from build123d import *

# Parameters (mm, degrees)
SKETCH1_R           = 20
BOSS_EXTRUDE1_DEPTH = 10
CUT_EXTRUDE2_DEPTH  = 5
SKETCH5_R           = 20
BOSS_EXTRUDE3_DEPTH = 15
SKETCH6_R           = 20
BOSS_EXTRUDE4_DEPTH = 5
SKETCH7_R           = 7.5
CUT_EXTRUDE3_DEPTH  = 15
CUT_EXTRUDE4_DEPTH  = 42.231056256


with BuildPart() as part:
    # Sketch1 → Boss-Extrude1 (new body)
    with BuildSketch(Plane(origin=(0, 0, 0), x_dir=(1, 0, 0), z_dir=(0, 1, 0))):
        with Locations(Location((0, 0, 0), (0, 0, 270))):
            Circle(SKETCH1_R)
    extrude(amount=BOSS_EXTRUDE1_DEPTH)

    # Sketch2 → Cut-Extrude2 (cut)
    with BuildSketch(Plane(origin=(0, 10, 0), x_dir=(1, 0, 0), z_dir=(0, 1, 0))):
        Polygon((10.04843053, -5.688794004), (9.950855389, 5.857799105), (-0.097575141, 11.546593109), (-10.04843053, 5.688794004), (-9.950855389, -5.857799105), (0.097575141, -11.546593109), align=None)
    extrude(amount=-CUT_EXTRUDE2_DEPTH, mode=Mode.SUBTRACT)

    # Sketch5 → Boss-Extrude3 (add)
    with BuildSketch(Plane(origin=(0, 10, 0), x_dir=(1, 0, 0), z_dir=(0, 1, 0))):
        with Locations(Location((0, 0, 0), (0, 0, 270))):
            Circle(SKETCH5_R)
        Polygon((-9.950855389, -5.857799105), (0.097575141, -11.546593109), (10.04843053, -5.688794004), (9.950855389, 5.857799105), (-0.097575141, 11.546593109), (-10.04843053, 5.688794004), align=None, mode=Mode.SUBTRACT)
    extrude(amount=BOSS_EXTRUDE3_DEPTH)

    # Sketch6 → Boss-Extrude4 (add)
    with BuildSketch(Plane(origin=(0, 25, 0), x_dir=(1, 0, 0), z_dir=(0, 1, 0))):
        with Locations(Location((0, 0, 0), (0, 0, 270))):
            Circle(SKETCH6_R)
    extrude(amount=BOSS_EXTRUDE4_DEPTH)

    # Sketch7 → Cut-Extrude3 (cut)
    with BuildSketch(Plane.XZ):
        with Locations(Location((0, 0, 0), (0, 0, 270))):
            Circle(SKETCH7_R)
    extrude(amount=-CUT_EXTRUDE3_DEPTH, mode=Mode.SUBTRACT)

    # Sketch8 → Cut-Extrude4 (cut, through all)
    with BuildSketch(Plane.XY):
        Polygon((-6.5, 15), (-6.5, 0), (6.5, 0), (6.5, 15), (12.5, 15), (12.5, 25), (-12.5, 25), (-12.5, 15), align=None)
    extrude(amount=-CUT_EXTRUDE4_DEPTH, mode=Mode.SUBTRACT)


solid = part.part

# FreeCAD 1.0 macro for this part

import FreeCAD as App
import Part
import Sketcher

V = App.Vector


def add_polygon(sketch, points):
    """Adds a closed chain of lines whose ends are joined by coincident constraints."""
    first, n = sketch.GeometryCount, len(points)
    for a, b in zip(points, points[1:] + points[:1]):
        sketch.addGeometry(Part.LineSegment(App.Vector(*a, 0), App.Vector(*b, 0)), False)
    for i in range(n):
        sketch.addConstraint(Sketcher.Constraint("Coincident", first + i, 2, first + (i + 1) % n, 1))

doc = App.newDocument("Part")
body = doc.addObject("PartDesign::Body", "Body")

# Sketch on XZ plane
sketch1 = body.newObject("Sketcher::SketchObject", "Sketch")
sketch1.AttachmentSupport = (doc.getObject("XZ_Plane"), [""])
sketch1.MapMode = "FlatFace"
sketch1.addGeometry(Part.Circle(V(0, 0, 0), V(0, 0, 1), 20), False)
sketch1.addConstraint([
    Sketcher.Constraint("Coincident", 0, 3, -1, 1),
    Sketcher.Constraint("Diameter", 0, 40.0),
])
pad1 = body.newObject("PartDesign::Pad", "Pad")
pad1.Profile = sketch1
pad1.Length = 10
pad1.Reversed = True

# Sketch on XZ plane
sketch2 = body.newObject("Sketcher::SketchObject", "Sketch001")
sketch2.AttachmentSupport = (doc.getObject("XZ_Plane"), [""])
sketch2.MapMode = "FlatFace"
sketch2.AttachmentOffset = App.Placement(V(0, 0, -10), App.Rotation())
add_polygon(sketch2, [(10.048431, 5.688794), (9.950855, -5.857799), (-0.097575, -11.546593), (-10.048431, -5.688794), (-9.950855, 5.857799), (0.097575, 11.546593)])  # lines 0-5
sketch2.addConstraint([
    Sketcher.Constraint("Symmetric", 0, 2, 3, 2, -1, 1),
    Sketcher.Constraint("Symmetric", 1, 2, 4, 2, -1, 1),
    Sketcher.Constraint("Symmetric", 2, 2, 5, 2, -1, 1),
    Sketcher.Constraint("Equal", 0, 1),
    Sketcher.Constraint("Equal", 1, 2),
    Sketcher.Constraint("DistanceY", 0, 2, -1, 1, 5.857799),
    Sketcher.Constraint("DistanceY", 1, 2, 2, 2, 5.857799),
    Sketcher.Constraint("DistanceX", 2, 2, -1, 1, 10.048431),
    Sketcher.Constraint("DistanceX", 1, 2, 0, 2, 10.048431),
])
pocket1 = body.newObject("PartDesign::Pocket", "Pocket")
pocket1.Profile = sketch2
pocket1.Length = 5
pocket1.Reversed = True

# Sketch on XZ plane
sketch3 = body.newObject("Sketcher::SketchObject", "Sketch002")
sketch3.AttachmentSupport = (doc.getObject("XZ_Plane"), [""])
sketch3.MapMode = "FlatFace"
sketch3.AttachmentOffset = App.Placement(V(0, 0, -10), App.Rotation())
sketch3.addGeometry(Part.Circle(V(0, 0, 0), V(0, 0, 1), 20), False)  # 0
add_polygon(sketch3, [(0.097575, 11.546593), (-9.950855, 5.857799), (-10.048431, -5.688794), (-0.097575, -11.546593), (9.950855, -5.857799), (10.048431, 5.688794)])  # lines 1-6
sketch3.addConstraint([
    Sketcher.Constraint("Coincident", 0, 3, -1, 1),
    Sketcher.Constraint("Symmetric", 1, 2, 4, 2, -1, 1),
    Sketcher.Constraint("Symmetric", 2, 2, 5, 2, -1, 1),
    Sketcher.Constraint("Symmetric", 3, 2, 6, 2, -1, 1),
    Sketcher.Constraint("Equal", 1, 2),
    Sketcher.Constraint("Equal", 2, 3),
    Sketcher.Constraint("Diameter", 0, 40.0),
    Sketcher.Constraint("DistanceY", -1, 1, 1, 2, 5.857799),
    Sketcher.Constraint("DistanceY", 3, 2, 2, 2, 5.857799),
    Sketcher.Constraint("DistanceX", 2, 2, -1, 1, 10.048431),
    Sketcher.Constraint("DistanceX", 1, 2, 3, 2, 9.85328),
])
pad2 = body.newObject("PartDesign::Pad", "Pad001")
pad2.Profile = sketch3
pad2.Length = 15
pad2.Reversed = True

# Sketch on XZ plane
sketch4 = body.newObject("Sketcher::SketchObject", "Sketch003")
sketch4.AttachmentSupport = (doc.getObject("XZ_Plane"), [""])
sketch4.MapMode = "FlatFace"
sketch4.AttachmentOffset = App.Placement(V(0, 0, -25), App.Rotation())
sketch4.addGeometry(Part.Circle(V(0, 0, 0), V(0, 0, 1), 20), False)
sketch4.addConstraint([
    Sketcher.Constraint("Coincident", 0, 3, -1, 1),
    Sketcher.Constraint("Diameter", 0, 40.0),
])
pad3 = body.newObject("PartDesign::Pad", "Pad002")
pad3.Profile = sketch4
pad3.Length = 5
pad3.Reversed = True

# Sketch on XZ plane
sketch5 = body.newObject("Sketcher::SketchObject", "Sketch004")
sketch5.AttachmentSupport = (doc.getObject("XZ_Plane"), [""])
sketch5.MapMode = "FlatFace"
sketch5.addGeometry(Part.Circle(V(0, 0, 0), V(0, 0, 1), 7.5), False)
sketch5.addConstraint([
    Sketcher.Constraint("Coincident", 0, 3, -1, 1),
    Sketcher.Constraint("Diameter", 0, 15.0),
])
pocket2 = body.newObject("PartDesign::Pocket", "Pocket001")
pocket2.Profile = sketch5
pocket2.Length = 15

# Sketch on XY plane
sketch6 = body.newObject("Sketcher::SketchObject", "Sketch005")
sketch6.AttachmentSupport = (doc.getObject("XY_Plane"), [""])
sketch6.MapMode = "FlatFace"
add_polygon(sketch6, [(-6.5, 15), (-6.5, 0), (6.5, 0), (6.5, 15), (12.5, 15), (12.5, 25), (-12.5, 25), (-12.5, 15)])  # lines 0-7
sketch6.addConstraint([
    Sketcher.Constraint("Vertical", 0),
    Sketcher.Constraint("Horizontal", 1),
    Sketcher.Constraint("Vertical", 2),
    Sketcher.Constraint("Horizontal", 3),
    Sketcher.Constraint("Vertical", 4),
    Sketcher.Constraint("Horizontal", 5),
    Sketcher.Constraint("Vertical", 6),
    Sketcher.Constraint("Horizontal", 7),
    Sketcher.Constraint("Symmetric", 0, 2, 1, 2, -1, 1),
    Sketcher.Constraint("Symmetric", 3, 2, 6, 2, -2),
    Sketcher.Constraint("DistanceX", 1, 1, 1, 2, 13.0),
    Sketcher.Constraint("DistanceX", 3, 1, 3, 2, 6.0),
    Sketcher.Constraint("DistanceY", 0, 2, 0, 1, 15.0),
    Sketcher.Constraint("DistanceY", 4, 1, 4, 2, 10.0),
])
pocket3 = body.newObject("PartDesign::Pocket", "Pocket002")
pocket3.Profile = sketch6
pocket3.Type = "ThroughAll"

doc.recompute()
